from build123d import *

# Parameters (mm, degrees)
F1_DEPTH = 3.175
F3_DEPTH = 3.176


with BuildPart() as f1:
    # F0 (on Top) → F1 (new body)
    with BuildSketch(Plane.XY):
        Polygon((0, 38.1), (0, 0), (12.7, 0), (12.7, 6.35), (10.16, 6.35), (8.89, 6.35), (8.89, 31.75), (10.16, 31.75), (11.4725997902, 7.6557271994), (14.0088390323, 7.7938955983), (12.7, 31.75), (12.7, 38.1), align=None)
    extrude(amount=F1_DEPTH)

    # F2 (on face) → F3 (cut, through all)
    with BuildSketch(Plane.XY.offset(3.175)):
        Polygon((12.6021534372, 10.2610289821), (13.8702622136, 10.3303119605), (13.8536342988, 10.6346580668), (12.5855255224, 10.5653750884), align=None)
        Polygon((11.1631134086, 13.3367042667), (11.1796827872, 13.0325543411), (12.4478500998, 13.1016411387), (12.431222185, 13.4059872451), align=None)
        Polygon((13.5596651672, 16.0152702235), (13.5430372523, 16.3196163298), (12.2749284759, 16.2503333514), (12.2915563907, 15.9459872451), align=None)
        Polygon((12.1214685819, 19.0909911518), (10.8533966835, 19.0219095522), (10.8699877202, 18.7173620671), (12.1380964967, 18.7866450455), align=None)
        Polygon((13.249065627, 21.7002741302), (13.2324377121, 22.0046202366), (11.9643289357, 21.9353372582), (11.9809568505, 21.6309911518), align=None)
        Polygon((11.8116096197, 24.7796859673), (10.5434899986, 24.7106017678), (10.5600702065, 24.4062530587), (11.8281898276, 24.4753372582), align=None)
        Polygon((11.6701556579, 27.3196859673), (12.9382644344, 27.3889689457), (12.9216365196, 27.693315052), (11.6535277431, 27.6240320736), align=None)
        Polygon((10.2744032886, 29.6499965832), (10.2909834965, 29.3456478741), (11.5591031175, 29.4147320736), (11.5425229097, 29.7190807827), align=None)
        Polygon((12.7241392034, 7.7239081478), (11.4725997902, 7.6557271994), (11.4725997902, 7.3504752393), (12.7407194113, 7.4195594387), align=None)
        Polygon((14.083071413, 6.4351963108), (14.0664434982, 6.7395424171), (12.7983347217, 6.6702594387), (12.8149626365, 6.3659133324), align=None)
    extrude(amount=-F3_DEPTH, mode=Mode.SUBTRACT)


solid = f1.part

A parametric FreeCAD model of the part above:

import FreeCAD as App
import Part
import Sketcher

V = App.Vector
Q = App.Units.Quantity


def add_polygon(sketch, points):
    """Adds a closed chain of lines whose ends are joined by coincident constraints."""
    first, n = sketch.GeometryCount, len(points)
    for a, b in zip(points, points[1:] + points[:1]):
        sketch.addGeometry(Part.LineSegment(App.Vector(*a, 0), App.Vector(*b, 0)), False)
    for i in range(n):
        sketch.addConstraint(Sketcher.Constraint("Coincident", first + i, 2, first + (i + 1) % n, 1))

doc = App.newDocument("Part")
params = doc.addObject("Spreadsheet::Sheet", "Params")
for row, (alias, value) in enumerate([
    ("sketch1_height", "1 in"),
    ("sketch1_width", "0.5 in"),
    ("sketch1_height2", "1.5 in"),
    ("sketch1_length", "0.1 in"),
    ("sketch1_width2", "0.15 in"),
    ("pad1_length", "0.125 in"),
    ("sketch2_length", "0.05 in"),
    ("sketch2_length2", "0.012 in"),
], start=1):
    params.set(f"A{row}", alias)
    params.set(f"B{row}", "=" + value)
    params.setAlias(f"B{row}", alias)

body = doc.addObject("PartDesign::Body", "Body")

# Sketch on XY plane
sketch1 = doc.addObject("Sketcher::SketchObject", "Sketch")
body.addObject(sketch1)
sketch1.AttachmentSupport = (doc.XY_Plane, [""])
sketch1.MapMode = "FlatFace"
add_polygon(sketch1, [(0, 38.1), (0, 0), (12.7, 0), (12.7, 6.3), (8.9, 6.3), (8.9, 31.8), (10.2, 31.8), (11.5, 7.7), (14, 7.8), (12.7, 31.8), (12.7, 38.1)])  # lines 0-10
sketch1.addConstraint([
    Sketcher.Constraint("Vertical", 0),
    Sketcher.Constraint("Horizontal", 1),
    Sketcher.Constraint("Vertical", 2),
    Sketcher.Constraint("Horizontal", 3),
    Sketcher.Constraint("Vertical", 4),
    Sketcher.Constraint("Horizontal", 5),
    Sketcher.Constraint("Vertical", 9),
    Sketcher.Constraint("Horizontal", 10),
    Sketcher.Constraint("Coincident", 0, 2, -1, 1),
    Sketcher.Constraint("Perpendicular", 6, 7),
    Sketcher.Constraint("Horizontal", 5, 2, 8, 2),
    Sketcher.Constraint("Vertical", 2, 2, 8, 2),
    Sketcher.Constraint("Equal", 2, 9),
    Sketcher.Constraint("DistanceY", 4, 1, 4, 2, Q("1 in")),
    Sketcher.Constraint("DistanceX", 1, 1, 1, 2, Q("0.5 in")),
    Sketcher.Constraint("DistanceY", 0, 2, 0, 1, Q("1.5 in")),
    Sketcher.Constraint("Distance", 7, Q("0.1 in")),
    Sketcher.Constraint("DistanceX", 3, 2, 3, 1, Q("0.15 in")),
    Sketcher.Constraint("DistanceX", 5, 1, 5, 2, Q("0.05 in")),
    Sketcher.Constraint("Distance", 6, Q("0.95 in")),
    Sketcher.Constraint("DistanceX", -1, 1, 6, 2, 11.4726),
])
sketch1.setExpression("Constraints[24]", "Params.sketch1_height")
sketch1.setExpression("Constraints[25]", "Params.sketch1_width")
sketch1.setExpression("Constraints[26]", "Params.sketch1_height2")
sketch1.setExpression("Constraints[27]", "Params.sketch1_length")
sketch1.setExpression("Constraints[28]", "Params.sketch1_width2")
pad1 = doc.addObject("PartDesign::Pad", "Pad")
body.addObject(pad1)
pad1.Profile = sketch1
pad1.setExpression("Length", "Params.pad1_length")

# Sketch on XY plane
sketch2 = doc.addObject("Sketcher::SketchObject", "Sketch001")
body.addObject(sketch2)
sketch2.AttachmentSupport = (doc.XY_Plane, [""])
sketch2.MapMode = "FlatFace"
sketch2.AttachmentOffset = App.Placement(V(0, 0, 0.125 * 25.4), App.Rotation())
add_polygon(sketch2, [(12.6, 10.26), (13.87, 10.33), (13.85, 10.63), (12.59, 10.57)])  # lines 0-3
add_polygon(sketch2, [(11.16, 13.34), (11.18, 13.03), (12.45, 13.1), (12.43, 13.41)])  # lines 4-7
add_polygon(sketch2, [(13.56, 16.02), (13.54, 16.32), (12.27, 16.25), (12.29, 15.95)])  # lines 8-11
add_polygon(sketch2, [(12.12, 19.09), (10.85, 19.02), (10.87, 18.72), (12.14, 18.79)])  # lines 12-15
add_polygon(sketch2, [(13.25, 21.7), (13.23, 22), (11.96, 21.94), (11.98, 21.63)])  # lines 16-19
add_polygon(sketch2, [(11.81, 24.78), (10.54, 24.71), (10.56, 24.41), (11.83, 24.48)])  # lines 20-23
add_polygon(sketch2, [(11.67, 27.32), (12.94, 27.39), (12.92, 27.69), (11.65, 27.62)])  # lines 24-27
add_polygon(sketch2, [(10.27, 29.65), (10.29, 29.35), (11.56, 29.41), (11.54, 29.72)])  # lines 28-31
add_polygon(sketch2, [(12.72, 7.72), (11.47, 7.66), (11.47, 7.35), (12.74, 7.42)])  # lines 32-35
add_polygon(sketch2, [(14.08, 6.44), (14.07, 6.74), (12.8, 6.67), (12.81, 6.37)])  # lines 36-39
sketch2.addConstraint([
    Sketcher.Constraint("Vertical", 33),
    Sketcher.Constraint("Perpendicular", 0, 1),
    Sketcher.Constraint("Perpendicular", 1, 2),
    Sketcher.Constraint("Perpendicular", 2, 3),
    Sketcher.Constraint("Perpendicular", 4, 5),
    Sketcher.Constraint("Parallel", 3, 6),
    Sketcher.Constraint("Perpendicular", 6, 7),
    Sketcher.Constraint("Perpendicular", 7, 8),
    Sketcher.Constraint("Perpendicular", 8, 9),
    Sketcher.Constraint("Perpendicular", 9, 10),
    Sketcher.Constraint("Perpendicular", 10, 11),
    Sketcher.Constraint("Parallel", 5, 12),
    Sketcher.Constraint("Perpendicular", 12, 13),
    Sketcher.Constraint("Parallel", 11, 14),
    Sketcher.Constraint("Perpendicular", 14, 15),
    Sketcher.Constraint("Parallel", 15, 16),
    Sketcher.Constraint("Perpendicular", 16, 17),
    Sketcher.Constraint("Perpendicular", 17, 18),
    Sketcher.Constraint("Perpendicular", 18, 19),
    Sketcher.Constraint("Perpendicular", 13, 20),
    Sketcher.Constraint("Perpendicular", 20, 21),
    Sketcher.Constraint("Perpendicular", 21, 22),
    Sketcher.Constraint("Perpendicular", 22, 23),
    Sketcher.Constraint("Parallel", 19, 24),
    Sketcher.Constraint("Perpendicular", 24, 25),
    Sketcher.Constraint("Perpendicular", 25, 26),
    Sketcher.Constraint("Perpendicular", 26, 27),
    Sketcher.Constraint("Parallel", 23, 28),
    Sketcher.Constraint("Perpendicular", 28, 29),
    Sketcher.Constraint("Perpendicular", 29, 30),
    Sketcher.Constraint("Perpendicular", 30, 31),
    Sketcher.Constraint("Parallel", 31, 32),
    Sketcher.Constraint("Parallel", 32, 34),
    Sketcher.Constraint("Perpendicular", 34, 35),
    Sketcher.Constraint("Parallel", 27, 36),
    Sketcher.Constraint("Perpendicular", 36, 37),
    Sketcher.Constraint("Perpendicular", 37, 38),
    Sketcher.Constraint("Perpendicular", 38, 39),
    Sketcher.Constraint("Equal", 3, 6),
    Sketcher.Constraint("Equal", 2, 7),
    Sketcher.Constraint("Equal", 6, 8),
    Sketcher.Constraint("Equal", 7, 9),
    Sketcher.Constraint("Equal", 11, 14),
    Sketcher.Constraint("Equal", 10, 15),
    Sketcher.Constraint("Equal", 15, 16),
    Sketcher.Constraint("Equal", 14, 17),
    Sketcher.Constraint("Equal", 19, 20),
    Sketcher.Constraint("Equal", 18, 21),
    Sketcher.Constraint("Equal", 22, 24),
    Sketcher.Constraint("Equal", 23, 25),
    Sketcher.Constraint("Equal", 27, 28),
    Sketcher.Constraint("Equal", 26, 29),
    Sketcher.Constraint("Equal", 31, 34),
    Sketcher.Constraint("Equal", 30, 35),
    Sketcher.Constraint("Equal", 35, 36),
    Sketcher.Constraint("Equal", 34, 37),
    Sketcher.Constraint("DistanceY", 6, 2, 10, 2, Q("0.1 in")),
    Sketcher.Constraint("DistanceY", 15, 2, 18, 2, Q("0.1 in")),
    Sketcher.Constraint("DistanceY", 17, 2, 22, 2, Q("0.1 in")),
    Sketcher.Constraint("DistanceY", 23, 2, 27, 2, Q("0.1 in")),
    Sketcher.Constraint("Distance", 0, Q("0.05 in")),
    Sketcher.Constraint("Distance", 1, Q("0.012 in")),
    Sketcher.Constraint("DistanceY", 26, 2, 29, 2, Q("0.0705 in")),
    Sketcher.Constraint("DistanceY", 37, 2, 34, 2, Q("0.0295 in")),
    Sketcher.Constraint("Distance", 4, 0.304601),
    Sketcher.Constraint("DistanceY", -1, 1, 20, 2, 24.710602),
    Sketcher.Constraint("DistanceX", -1, 1, 32, 2, 11.4726),
    Sketcher.Constraint("DistanceX", 12, 2, 14, 2, 1.2847),
    Sketcher.Constraint("DistanceX", 16, 2, 8, 2, 0.3106),
    Sketcher.Constraint("DistanceY", 32, 2, 3, 2, 2.605302),
    Sketcher.Constraint("DistanceY", -1, 1, 0, 2, 10.330312),
    Sketcher.Constraint("DistanceX", -1, 1, 5, 2, 12.44785),
    Sketcher.Constraint("DistanceY", -1, 1, 5, 2, 13.101641),
    Sketcher.Constraint("DistanceX", -1, 1, 9, 2, 12.274928),
    Sketcher.Constraint("DistanceX", -1, 1, 15, 2, 12.121469),
    Sketcher.Constraint("DistanceX", -1, 1, 20, 2, 10.54349),
    Sketcher.Constraint("DistanceX", -1, 1, 39, 2, 14.083071),
    Sketcher.Constraint("DistanceX", 4, 2, 3, 2, 1.422471),
    Sketcher.Constraint("DistanceX", 26, 2, 23, 2, 0.158082),
    Sketcher.Constraint("DistanceX", 28, 2, 24, 2, 2.647281),
])
sketch2.setExpression("Constraints[100]", "Params.sketch2_length")
sketch2.setExpression("Constraints[101]", "Params.sketch2_length2")
pocket1 = doc.addObject("PartDesign::Pocket", "Pocket")
body.addObject(pocket1)
pocket1.Profile = sketch2
pocket1.Type = "ThroughAll"

doc.recompute()
